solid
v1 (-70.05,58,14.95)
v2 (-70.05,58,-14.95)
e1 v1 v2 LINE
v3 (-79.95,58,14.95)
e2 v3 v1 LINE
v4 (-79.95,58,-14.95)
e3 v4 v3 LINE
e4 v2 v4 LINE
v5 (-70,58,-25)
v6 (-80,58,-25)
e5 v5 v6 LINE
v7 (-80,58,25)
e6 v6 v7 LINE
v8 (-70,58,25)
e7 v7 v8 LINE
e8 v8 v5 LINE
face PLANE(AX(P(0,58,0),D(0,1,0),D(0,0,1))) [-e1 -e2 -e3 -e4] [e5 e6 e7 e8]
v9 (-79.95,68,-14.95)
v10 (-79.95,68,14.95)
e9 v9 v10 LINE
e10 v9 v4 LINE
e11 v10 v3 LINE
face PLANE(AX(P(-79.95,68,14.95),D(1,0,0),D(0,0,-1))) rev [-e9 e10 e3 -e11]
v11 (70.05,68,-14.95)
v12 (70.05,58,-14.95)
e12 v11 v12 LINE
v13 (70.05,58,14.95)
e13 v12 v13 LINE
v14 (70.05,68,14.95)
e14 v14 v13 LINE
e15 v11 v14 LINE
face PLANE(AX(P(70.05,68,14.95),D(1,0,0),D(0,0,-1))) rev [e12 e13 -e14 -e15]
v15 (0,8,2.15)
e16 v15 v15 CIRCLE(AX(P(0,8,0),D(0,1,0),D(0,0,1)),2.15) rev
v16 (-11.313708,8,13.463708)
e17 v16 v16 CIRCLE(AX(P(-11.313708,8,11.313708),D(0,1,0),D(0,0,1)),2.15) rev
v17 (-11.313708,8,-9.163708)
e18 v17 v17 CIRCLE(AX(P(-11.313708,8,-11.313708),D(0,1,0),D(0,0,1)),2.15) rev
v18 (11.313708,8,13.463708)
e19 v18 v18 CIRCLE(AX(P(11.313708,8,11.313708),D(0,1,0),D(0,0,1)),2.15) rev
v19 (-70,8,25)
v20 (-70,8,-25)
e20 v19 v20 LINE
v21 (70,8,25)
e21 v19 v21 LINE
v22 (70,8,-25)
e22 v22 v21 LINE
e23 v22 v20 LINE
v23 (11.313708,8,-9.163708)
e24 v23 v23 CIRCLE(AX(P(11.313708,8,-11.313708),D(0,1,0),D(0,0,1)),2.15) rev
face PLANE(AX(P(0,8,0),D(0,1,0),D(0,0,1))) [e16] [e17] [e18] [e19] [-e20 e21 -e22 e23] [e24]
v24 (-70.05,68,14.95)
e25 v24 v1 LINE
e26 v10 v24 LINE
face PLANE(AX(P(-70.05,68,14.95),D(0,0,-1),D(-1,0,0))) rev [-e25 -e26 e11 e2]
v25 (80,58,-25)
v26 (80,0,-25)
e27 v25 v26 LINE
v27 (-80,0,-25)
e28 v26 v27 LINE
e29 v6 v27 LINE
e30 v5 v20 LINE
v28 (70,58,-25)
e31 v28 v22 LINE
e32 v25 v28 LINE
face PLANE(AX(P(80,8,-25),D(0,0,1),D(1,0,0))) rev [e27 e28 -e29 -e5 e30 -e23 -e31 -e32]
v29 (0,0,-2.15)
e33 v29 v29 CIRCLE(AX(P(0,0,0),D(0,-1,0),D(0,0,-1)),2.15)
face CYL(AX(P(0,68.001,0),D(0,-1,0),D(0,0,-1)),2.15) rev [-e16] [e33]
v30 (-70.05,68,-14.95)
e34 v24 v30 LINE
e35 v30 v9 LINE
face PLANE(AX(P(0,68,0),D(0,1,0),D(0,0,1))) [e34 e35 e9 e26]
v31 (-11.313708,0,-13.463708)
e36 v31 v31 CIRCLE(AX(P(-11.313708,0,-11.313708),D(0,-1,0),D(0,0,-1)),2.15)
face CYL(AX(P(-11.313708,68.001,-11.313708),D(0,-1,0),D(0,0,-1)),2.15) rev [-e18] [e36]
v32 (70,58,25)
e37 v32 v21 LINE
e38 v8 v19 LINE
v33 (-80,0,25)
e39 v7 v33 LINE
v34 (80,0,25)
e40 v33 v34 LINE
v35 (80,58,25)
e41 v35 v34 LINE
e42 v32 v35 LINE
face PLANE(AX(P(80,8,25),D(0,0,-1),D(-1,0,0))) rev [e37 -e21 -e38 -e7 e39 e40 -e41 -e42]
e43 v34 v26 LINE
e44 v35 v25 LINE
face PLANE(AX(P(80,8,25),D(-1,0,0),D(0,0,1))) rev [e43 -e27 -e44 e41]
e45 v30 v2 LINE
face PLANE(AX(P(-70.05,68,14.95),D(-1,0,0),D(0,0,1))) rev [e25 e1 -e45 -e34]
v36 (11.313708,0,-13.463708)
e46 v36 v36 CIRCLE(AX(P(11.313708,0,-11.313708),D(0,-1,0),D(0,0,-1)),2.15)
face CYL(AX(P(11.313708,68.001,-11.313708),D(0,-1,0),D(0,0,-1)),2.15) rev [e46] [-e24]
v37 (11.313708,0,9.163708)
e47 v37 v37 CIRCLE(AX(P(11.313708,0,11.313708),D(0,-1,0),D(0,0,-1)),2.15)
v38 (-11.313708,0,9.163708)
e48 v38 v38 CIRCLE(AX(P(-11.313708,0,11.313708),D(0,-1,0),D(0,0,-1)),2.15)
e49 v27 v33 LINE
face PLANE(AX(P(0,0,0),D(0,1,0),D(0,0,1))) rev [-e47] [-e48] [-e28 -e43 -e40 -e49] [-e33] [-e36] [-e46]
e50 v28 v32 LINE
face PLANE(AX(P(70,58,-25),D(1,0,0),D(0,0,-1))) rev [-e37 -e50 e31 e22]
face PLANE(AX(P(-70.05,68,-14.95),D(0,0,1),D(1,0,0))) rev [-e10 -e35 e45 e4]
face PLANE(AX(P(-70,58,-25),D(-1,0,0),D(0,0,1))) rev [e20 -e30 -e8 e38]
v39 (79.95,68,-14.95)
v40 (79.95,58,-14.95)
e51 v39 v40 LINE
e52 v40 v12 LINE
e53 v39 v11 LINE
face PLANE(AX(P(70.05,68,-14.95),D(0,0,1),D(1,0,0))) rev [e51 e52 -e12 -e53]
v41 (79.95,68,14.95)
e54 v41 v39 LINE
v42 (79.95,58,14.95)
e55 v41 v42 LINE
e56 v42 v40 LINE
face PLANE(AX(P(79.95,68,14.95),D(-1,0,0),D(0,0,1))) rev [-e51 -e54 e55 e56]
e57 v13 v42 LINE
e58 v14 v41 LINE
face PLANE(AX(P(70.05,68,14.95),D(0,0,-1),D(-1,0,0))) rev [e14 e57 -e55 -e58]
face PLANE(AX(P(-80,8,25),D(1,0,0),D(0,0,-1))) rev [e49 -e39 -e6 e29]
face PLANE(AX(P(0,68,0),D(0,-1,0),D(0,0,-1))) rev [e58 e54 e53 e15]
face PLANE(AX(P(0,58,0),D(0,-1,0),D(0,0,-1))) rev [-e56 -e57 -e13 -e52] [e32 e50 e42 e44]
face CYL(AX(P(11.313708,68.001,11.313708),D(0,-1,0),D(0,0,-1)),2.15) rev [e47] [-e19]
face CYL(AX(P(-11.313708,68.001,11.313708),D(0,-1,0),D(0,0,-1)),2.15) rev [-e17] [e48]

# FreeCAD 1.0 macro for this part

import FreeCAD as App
import Part
import Sketcher

doc = App.newDocument("Part")
body = doc.addObject("PartDesign::Body", "Body")

# Sketch on XZ plane
sketch1 = body.newObject("Sketcher::SketchObject", "Sketch")
sketch1.AttachmentSupport = (doc.getObject("XZ_Plane"), [""])
sketch1.MapMode = "FlatFace"
sketch1.addGeometry(Part.LineSegment(App.Vector(-80, -25, 0), App.Vector(-80, 25, 0)), False)
sketch1.addGeometry(Part.LineSegment(App.Vector(-80, 25, 0), App.Vector(80, 25, 0)), False)
sketch1.addGeometry(Part.LineSegment(App.Vector(80, 25, 0), App.Vector(80, -25, 0)), False)
sketch1.addGeometry(Part.LineSegment(App.Vector(80, -25, 0), App.Vector(-80, -25, 0)), False)
sketch1.addConstraint(Sketcher.Constraint("Coincident", 0, 2, 1, 1))
sketch1.addConstraint(Sketcher.Constraint("Coincident", 1, 2, 2, 1))
sketch1.addConstraint(Sketcher.Constraint("Coincident", 2, 2, 3, 1))
sketch1.addConstraint(Sketcher.Constraint("Coincident", 3, 2, 0, 1))
sketch1.addConstraint(Sketcher.Constraint("Vertical", 0))
sketch1.addConstraint(Sketcher.Constraint("Horizontal", 1))
sketch1.addConstraint(Sketcher.Constraint("Vertical", 2))
sketch1.addConstraint(Sketcher.Constraint("Horizontal", 3))
sketch1.addConstraint(Sketcher.Constraint("Symmetric", 0, 2, 2, 2, -1, 1))
sketch1.addConstraint(Sketcher.Constraint("DistanceX", 1, 1, 1, 2, 160.0))
sketch1.addConstraint(Sketcher.Constraint("DistanceY", 0, 1, 0, 2, 50.0))
pad1 = body.newObject("PartDesign::Pad", "Pad")
pad1.Profile = sketch1
pad1.Length = 8
pad1.Reversed = True

# Sketch on XZ plane
sketch2 = body.newObject("Sketcher::SketchObject", "Sketch001")
sketch2.AttachmentSupport = (doc.getObject("XZ_Plane"), [""])
sketch2.MapMode = "FlatFace"
sketch2.AttachmentOffset = App.Placement(App.Vector(0, 0, -8), App.Rotation())
sketch2.addGeometry(Part.LineSegment(App.Vector(-80, -25, 0), App.Vector(-80, 25, 0)), False)
sketch2.addGeometry(Part.LineSegment(App.Vector(-80, 25, 0), App.Vector(-70, 25, 0)), False)
sketch2.addGeometry(Part.LineSegment(App.Vector(-70, 25, 0), App.Vector(-70, -25, 0)), False)
sketch2.addGeometry(Part.LineSegment(App.Vector(-70, -25, 0), App.Vector(-80, -25, 0)), False)
sketch2.addGeometry(Part.LineSegment(App.Vector(70, -25, 0), App.Vector(70, 25, 0)), False)
sketch2.addGeometry(Part.LineSegment(App.Vector(70, 25, 0), App.Vector(80, 25, 0)), False)
sketch2.addGeometry(Part.LineSegment(App.Vector(80, 25, 0), App.Vector(80, -25, 0)), False)
sketch2.addGeometry(Part.LineSegment(App.Vector(80, -25, 0), App.Vector(70, -25, 0)), False)
sketch2.addConstraint(Sketcher.Constraint("Coincident", 0, 2, 1, 1))
sketch2.addConstraint(Sketcher.Constraint("Coincident", 1, 2, 2, 1))
sketch2.addConstraint(Sketcher.Constraint("Coincident", 2, 2, 3, 1))
sketch2.addConstraint(Sketcher.Constraint("Coincident", 3, 2, 0, 1))
sketch2.addConstraint(Sketcher.Constraint("Coincident", 4, 2, 5, 1))
sketch2.addConstraint(Sketcher.Constraint("Coincident", 5, 2, 6, 1))
sketch2.addConstraint(Sketcher.Constraint("Coincident", 6, 2, 7, 1))
sketch2.addConstraint(Sketcher.Constraint("Coincident", 7, 2, 4, 1))
sketch2.addConstraint(Sketcher.Constraint("Vertical", 0))
sketch2.addConstraint(Sketcher.Constraint("Horizontal", 1))
sketch2.addConstraint(Sketcher.Constraint("Vertical", 2))
sketch2.addConstraint(Sketcher.Constraint("Horizontal", 3))
sketch2.addConstraint(Sketcher.Constraint("Vertical", 4))
sketch2.addConstraint(Sketcher.Constraint("Horizontal", 5))
sketch2.addConstraint(Sketcher.Constraint("Vertical", 6))
sketch2.addConstraint(Sketcher.Constraint("Horizontal", 7))
sketch2.addConstraint(Sketcher.Constraint("Symmetric", 2, 2, 4, 2, -1, 1))
sketch2.addConstraint(Sketcher.Constraint("Symmetric", 0, 2, 6, 2, -1, 1))
sketch2.addConstraint(Sketcher.Constraint("Horizontal", 1, 2, 4, 2))
sketch2.addConstraint(Sketcher.Constraint("DistanceX", 1, 1, 1, 2, 10.0))
sketch2.addConstraint(Sketcher.Constraint("DistanceY", 0, 1, 0, 2, 50.0))
sketch2.addConstraint(Sketcher.Constraint("DistanceX", 0, 2, -1, 1, 80.0))
pad2 = body.newObject("PartDesign::Pad", "Pad001")
pad2.Profile = sketch2
pad2.Length = 50
pad2.Reversed = True

# Sketch on XZ plane
sketch3 = body.newObject("Sketcher::SketchObject", "Sketch002")
sketch3.AttachmentSupport = (doc.getObject("XZ_Plane"), [""])
sketch3.MapMode = "FlatFace"
sketch3.AttachmentOffset = App.Placement(App.Vector(0, 0, -58), App.Rotation())
sketch3.addGeometry(Part.LineSegment(App.Vector(-80, -15, 0), App.Vector(-80, 15, 0)), False)
sketch3.addGeometry(Part.LineSegment(App.Vector(-80, 15, 0), App.Vector(-70, 15, 0)), False)
sketch3.addGeometry(Part.LineSegment(App.Vector(-70, 15, 0), App.Vector(-70, -15, 0)), False)
sketch3.addGeometry(Part.LineSegment(App.Vector(-70, -15, 0), App.Vector(-80, -15, 0)), False)
sketch3.addGeometry(Part.LineSegment(App.Vector(70, -15, 0), App.Vector(70, 15, 0)), False)
sketch3.addGeometry(Part.LineSegment(App.Vector(70, 15, 0), App.Vector(80, 15, 0)), False)
sketch3.addGeometry(Part.LineSegment(App.Vector(80, 15, 0), App.Vector(80, -15, 0)), False)
sketch3.addGeometry(Part.LineSegment(App.Vector(80, -15, 0), App.Vector(70, -15, 0)), False)
sketch3.addConstraint(Sketcher.Constraint("Coincident", 0, 2, 1, 1))
sketch3.addConstraint(Sketcher.Constraint("Coincident", 1, 2, 2, 1))
sketch3.addConstraint(Sketcher.Constraint("Coincident", 2, 2, 3, 1))
sketch3.addConstraint(Sketcher.Constraint("Coincident", 3, 2, 0, 1))
sketch3.addConstraint(Sketcher.Constraint("Coincident", 4, 2, 5, 1))
sketch3.addConstraint(Sketcher.Constraint("Coincident", 5, 2, 6, 1))
sketch3.addConstraint(Sketcher.Constraint("Coincident", 6, 2, 7, 1))
sketch3.addConstraint(Sketcher.Constraint("Coincident", 7, 2, 4, 1))
sketch3.addConstraint(Sketcher.Constraint("Vertical", 0))
sketch3.addConstraint(Sketcher.Constraint("Horizontal", 1))
sketch3.addConstraint(Sketcher.Constraint("Vertical", 2))
sketch3.addConstraint(Sketcher.Constraint("Horizontal", 3))
sketch3.addConstraint(Sketcher.Constraint("Vertical", 4))
sketch3.addConstraint(Sketcher.Constraint("Horizontal", 5))
sketch3.addConstraint(Sketcher.Constraint("Vertical", 6))
sketch3.addConstraint(Sketcher.Constraint("Horizontal", 7))
sketch3.addConstraint(Sketcher.Constraint("Symmetric", 2, 2, 4, 2, -1, 1))
sketch3.addConstraint(Sketcher.Constraint("Symmetric", 0, 2, 6, 2, -1, 1))
sketch3.addConstraint(Sketcher.Constraint("Horizontal", 1, 2, 4, 2))
sketch3.addConstraint(Sketcher.Constraint("DistanceX", 1, 1, 1, 2, 9.9))
sketch3.addConstraint(Sketcher.Constraint("DistanceY", 0, 1, 0, 2, 29.9))
sketch3.addConstraint(Sketcher.Constraint("DistanceX", 0, 2, 4, 2, 150.0))
pad3 = body.newObject("PartDesign::Pad", "Pad002")
pad3.Profile = sketch3
pad3.Length = 10
pad3.Reversed = True

# Sketch on XZ plane
sketch4 = body.newObject("Sketcher::SketchObject", "Sketch003")
sketch4.AttachmentSupport = (doc.getObject("XZ_Plane"), [""])
sketch4.MapMode = "FlatFace"
sketch4.addGeometry(Part.Circle(App.Vector(0, 0, 0), App.Vector(0, 0, 1), 2.1), False)
sketch4.addConstraint(Sketcher.Constraint("Coincident", 0, 3, -1, 1))
sketch4.addConstraint(Sketcher.Constraint("Diameter", 0, 4.3))
pocket1 = body.newObject("PartDesign::Pocket", "Pocket")
pocket1.Profile = sketch4
pocket1.Type = "UpToFirst"

# Sketch on XZ plane
sketch5 = body.newObject("Sketcher::SketchObject", "Sketch004")
sketch5.AttachmentSupport = (doc.getObject("XZ_Plane"), [""])
sketch5.MapMode = "FlatFace"
sketch5.addGeometry(Part.Circle(App.Vector(-11.3, 11.3, 0), App.Vector(0, 0, 1), 2.1), False)
sketch5.addConstraint(Sketcher.Constraint("Diameter", 0, 4.3))
sketch5.addConstraint(Sketcher.Constraint("DistanceX", 0, 3, -1, 1, 11.313708))
sketch5.addConstraint(Sketcher.Constraint("DistanceY", -1, 1, 0, 3, 11.313708))
pocket2 = body.newObject("PartDesign::Pocket", "Pocket001")
pocket2.Profile = sketch5
pocket2.Type = "UpToFirst"

# Sketch on XZ plane
sketch6 = body.newObject("Sketcher::SketchObject", "Sketch005")
sketch6.AttachmentSupport = (doc.getObject("XZ_Plane"), [""])
sketch6.MapMode = "FlatFace"
sketch6.addGeometry(Part.Circle(App.Vector(11.3, 11.3, 0), App.Vector(0, 0, 1), 2.1), False)
sketch6.addConstraint(Sketcher.Constraint("Diameter", 0, 4.3))
sketch6.addConstraint(Sketcher.Constraint("DistanceX", -1, 1, 0, 3, 11.313708))
sketch6.addConstraint(Sketcher.Constraint("DistanceY", -1, 1, 0, 3, 11.313708))
pocket3 = body.newObject("PartDesign::Pocket", "Pocket002")
pocket3.Profile = sketch6
pocket3.Type = "UpToFirst"

# Sketch on XZ plane
sketch7 = body.newObject("Sketcher::SketchObject", "Sketch006")
sketch7.AttachmentSupport = (doc.getObject("XZ_Plane"), [""])
sketch7.MapMode = "FlatFace"
sketch7.addGeometry(Part.Circle(App.Vector(11.3, -11.3, 0), App.Vector(0, 0, 1), 2.1), False)
sketch7.addConstraint(Sketcher.Constraint("Diameter", 0, 4.3))
sketch7.addConstraint(Sketcher.Constraint("DistanceX", -1, 1, 0, 3, 11.313708))
sketch7.addConstraint(Sketcher.Constraint("DistanceY", 0, 3, -1, 1, 11.313708))
pocket4 = body.newObject("PartDesign::Pocket", "Pocket003")
pocket4.Profile = sketch7
pocket4.Type = "UpToFirst"

# Sketch on XZ plane
sketch8 = body.newObject("Sketcher::SketchObject", "Sketch007")
sketch8.AttachmentSupport = (doc.getObject("XZ_Plane"), [""])
sketch8.MapMode = "FlatFace"
sketch8.addGeometry(Part.Circle(App.Vector(-11.3, -11.3, 0), App.Vector(0, 0, 1), 2.1), False)
sketch8.addConstraint(Sketcher.Constraint("Diameter", 0, 4.3))
sketch8.addConstraint(Sketcher.Constraint("DistanceX", 0, 3, -1, 1, 11.313708))
sketch8.addConstraint(Sketcher.Constraint("DistanceY", 0, 3, -1, 1, 11.313708))
pocket5 = body.newObject("PartDesign::Pocket", "Pocket004")
pocket5.Profile = sketch8
pocket5.Type = "UpToFirst"

doc.recompute()
